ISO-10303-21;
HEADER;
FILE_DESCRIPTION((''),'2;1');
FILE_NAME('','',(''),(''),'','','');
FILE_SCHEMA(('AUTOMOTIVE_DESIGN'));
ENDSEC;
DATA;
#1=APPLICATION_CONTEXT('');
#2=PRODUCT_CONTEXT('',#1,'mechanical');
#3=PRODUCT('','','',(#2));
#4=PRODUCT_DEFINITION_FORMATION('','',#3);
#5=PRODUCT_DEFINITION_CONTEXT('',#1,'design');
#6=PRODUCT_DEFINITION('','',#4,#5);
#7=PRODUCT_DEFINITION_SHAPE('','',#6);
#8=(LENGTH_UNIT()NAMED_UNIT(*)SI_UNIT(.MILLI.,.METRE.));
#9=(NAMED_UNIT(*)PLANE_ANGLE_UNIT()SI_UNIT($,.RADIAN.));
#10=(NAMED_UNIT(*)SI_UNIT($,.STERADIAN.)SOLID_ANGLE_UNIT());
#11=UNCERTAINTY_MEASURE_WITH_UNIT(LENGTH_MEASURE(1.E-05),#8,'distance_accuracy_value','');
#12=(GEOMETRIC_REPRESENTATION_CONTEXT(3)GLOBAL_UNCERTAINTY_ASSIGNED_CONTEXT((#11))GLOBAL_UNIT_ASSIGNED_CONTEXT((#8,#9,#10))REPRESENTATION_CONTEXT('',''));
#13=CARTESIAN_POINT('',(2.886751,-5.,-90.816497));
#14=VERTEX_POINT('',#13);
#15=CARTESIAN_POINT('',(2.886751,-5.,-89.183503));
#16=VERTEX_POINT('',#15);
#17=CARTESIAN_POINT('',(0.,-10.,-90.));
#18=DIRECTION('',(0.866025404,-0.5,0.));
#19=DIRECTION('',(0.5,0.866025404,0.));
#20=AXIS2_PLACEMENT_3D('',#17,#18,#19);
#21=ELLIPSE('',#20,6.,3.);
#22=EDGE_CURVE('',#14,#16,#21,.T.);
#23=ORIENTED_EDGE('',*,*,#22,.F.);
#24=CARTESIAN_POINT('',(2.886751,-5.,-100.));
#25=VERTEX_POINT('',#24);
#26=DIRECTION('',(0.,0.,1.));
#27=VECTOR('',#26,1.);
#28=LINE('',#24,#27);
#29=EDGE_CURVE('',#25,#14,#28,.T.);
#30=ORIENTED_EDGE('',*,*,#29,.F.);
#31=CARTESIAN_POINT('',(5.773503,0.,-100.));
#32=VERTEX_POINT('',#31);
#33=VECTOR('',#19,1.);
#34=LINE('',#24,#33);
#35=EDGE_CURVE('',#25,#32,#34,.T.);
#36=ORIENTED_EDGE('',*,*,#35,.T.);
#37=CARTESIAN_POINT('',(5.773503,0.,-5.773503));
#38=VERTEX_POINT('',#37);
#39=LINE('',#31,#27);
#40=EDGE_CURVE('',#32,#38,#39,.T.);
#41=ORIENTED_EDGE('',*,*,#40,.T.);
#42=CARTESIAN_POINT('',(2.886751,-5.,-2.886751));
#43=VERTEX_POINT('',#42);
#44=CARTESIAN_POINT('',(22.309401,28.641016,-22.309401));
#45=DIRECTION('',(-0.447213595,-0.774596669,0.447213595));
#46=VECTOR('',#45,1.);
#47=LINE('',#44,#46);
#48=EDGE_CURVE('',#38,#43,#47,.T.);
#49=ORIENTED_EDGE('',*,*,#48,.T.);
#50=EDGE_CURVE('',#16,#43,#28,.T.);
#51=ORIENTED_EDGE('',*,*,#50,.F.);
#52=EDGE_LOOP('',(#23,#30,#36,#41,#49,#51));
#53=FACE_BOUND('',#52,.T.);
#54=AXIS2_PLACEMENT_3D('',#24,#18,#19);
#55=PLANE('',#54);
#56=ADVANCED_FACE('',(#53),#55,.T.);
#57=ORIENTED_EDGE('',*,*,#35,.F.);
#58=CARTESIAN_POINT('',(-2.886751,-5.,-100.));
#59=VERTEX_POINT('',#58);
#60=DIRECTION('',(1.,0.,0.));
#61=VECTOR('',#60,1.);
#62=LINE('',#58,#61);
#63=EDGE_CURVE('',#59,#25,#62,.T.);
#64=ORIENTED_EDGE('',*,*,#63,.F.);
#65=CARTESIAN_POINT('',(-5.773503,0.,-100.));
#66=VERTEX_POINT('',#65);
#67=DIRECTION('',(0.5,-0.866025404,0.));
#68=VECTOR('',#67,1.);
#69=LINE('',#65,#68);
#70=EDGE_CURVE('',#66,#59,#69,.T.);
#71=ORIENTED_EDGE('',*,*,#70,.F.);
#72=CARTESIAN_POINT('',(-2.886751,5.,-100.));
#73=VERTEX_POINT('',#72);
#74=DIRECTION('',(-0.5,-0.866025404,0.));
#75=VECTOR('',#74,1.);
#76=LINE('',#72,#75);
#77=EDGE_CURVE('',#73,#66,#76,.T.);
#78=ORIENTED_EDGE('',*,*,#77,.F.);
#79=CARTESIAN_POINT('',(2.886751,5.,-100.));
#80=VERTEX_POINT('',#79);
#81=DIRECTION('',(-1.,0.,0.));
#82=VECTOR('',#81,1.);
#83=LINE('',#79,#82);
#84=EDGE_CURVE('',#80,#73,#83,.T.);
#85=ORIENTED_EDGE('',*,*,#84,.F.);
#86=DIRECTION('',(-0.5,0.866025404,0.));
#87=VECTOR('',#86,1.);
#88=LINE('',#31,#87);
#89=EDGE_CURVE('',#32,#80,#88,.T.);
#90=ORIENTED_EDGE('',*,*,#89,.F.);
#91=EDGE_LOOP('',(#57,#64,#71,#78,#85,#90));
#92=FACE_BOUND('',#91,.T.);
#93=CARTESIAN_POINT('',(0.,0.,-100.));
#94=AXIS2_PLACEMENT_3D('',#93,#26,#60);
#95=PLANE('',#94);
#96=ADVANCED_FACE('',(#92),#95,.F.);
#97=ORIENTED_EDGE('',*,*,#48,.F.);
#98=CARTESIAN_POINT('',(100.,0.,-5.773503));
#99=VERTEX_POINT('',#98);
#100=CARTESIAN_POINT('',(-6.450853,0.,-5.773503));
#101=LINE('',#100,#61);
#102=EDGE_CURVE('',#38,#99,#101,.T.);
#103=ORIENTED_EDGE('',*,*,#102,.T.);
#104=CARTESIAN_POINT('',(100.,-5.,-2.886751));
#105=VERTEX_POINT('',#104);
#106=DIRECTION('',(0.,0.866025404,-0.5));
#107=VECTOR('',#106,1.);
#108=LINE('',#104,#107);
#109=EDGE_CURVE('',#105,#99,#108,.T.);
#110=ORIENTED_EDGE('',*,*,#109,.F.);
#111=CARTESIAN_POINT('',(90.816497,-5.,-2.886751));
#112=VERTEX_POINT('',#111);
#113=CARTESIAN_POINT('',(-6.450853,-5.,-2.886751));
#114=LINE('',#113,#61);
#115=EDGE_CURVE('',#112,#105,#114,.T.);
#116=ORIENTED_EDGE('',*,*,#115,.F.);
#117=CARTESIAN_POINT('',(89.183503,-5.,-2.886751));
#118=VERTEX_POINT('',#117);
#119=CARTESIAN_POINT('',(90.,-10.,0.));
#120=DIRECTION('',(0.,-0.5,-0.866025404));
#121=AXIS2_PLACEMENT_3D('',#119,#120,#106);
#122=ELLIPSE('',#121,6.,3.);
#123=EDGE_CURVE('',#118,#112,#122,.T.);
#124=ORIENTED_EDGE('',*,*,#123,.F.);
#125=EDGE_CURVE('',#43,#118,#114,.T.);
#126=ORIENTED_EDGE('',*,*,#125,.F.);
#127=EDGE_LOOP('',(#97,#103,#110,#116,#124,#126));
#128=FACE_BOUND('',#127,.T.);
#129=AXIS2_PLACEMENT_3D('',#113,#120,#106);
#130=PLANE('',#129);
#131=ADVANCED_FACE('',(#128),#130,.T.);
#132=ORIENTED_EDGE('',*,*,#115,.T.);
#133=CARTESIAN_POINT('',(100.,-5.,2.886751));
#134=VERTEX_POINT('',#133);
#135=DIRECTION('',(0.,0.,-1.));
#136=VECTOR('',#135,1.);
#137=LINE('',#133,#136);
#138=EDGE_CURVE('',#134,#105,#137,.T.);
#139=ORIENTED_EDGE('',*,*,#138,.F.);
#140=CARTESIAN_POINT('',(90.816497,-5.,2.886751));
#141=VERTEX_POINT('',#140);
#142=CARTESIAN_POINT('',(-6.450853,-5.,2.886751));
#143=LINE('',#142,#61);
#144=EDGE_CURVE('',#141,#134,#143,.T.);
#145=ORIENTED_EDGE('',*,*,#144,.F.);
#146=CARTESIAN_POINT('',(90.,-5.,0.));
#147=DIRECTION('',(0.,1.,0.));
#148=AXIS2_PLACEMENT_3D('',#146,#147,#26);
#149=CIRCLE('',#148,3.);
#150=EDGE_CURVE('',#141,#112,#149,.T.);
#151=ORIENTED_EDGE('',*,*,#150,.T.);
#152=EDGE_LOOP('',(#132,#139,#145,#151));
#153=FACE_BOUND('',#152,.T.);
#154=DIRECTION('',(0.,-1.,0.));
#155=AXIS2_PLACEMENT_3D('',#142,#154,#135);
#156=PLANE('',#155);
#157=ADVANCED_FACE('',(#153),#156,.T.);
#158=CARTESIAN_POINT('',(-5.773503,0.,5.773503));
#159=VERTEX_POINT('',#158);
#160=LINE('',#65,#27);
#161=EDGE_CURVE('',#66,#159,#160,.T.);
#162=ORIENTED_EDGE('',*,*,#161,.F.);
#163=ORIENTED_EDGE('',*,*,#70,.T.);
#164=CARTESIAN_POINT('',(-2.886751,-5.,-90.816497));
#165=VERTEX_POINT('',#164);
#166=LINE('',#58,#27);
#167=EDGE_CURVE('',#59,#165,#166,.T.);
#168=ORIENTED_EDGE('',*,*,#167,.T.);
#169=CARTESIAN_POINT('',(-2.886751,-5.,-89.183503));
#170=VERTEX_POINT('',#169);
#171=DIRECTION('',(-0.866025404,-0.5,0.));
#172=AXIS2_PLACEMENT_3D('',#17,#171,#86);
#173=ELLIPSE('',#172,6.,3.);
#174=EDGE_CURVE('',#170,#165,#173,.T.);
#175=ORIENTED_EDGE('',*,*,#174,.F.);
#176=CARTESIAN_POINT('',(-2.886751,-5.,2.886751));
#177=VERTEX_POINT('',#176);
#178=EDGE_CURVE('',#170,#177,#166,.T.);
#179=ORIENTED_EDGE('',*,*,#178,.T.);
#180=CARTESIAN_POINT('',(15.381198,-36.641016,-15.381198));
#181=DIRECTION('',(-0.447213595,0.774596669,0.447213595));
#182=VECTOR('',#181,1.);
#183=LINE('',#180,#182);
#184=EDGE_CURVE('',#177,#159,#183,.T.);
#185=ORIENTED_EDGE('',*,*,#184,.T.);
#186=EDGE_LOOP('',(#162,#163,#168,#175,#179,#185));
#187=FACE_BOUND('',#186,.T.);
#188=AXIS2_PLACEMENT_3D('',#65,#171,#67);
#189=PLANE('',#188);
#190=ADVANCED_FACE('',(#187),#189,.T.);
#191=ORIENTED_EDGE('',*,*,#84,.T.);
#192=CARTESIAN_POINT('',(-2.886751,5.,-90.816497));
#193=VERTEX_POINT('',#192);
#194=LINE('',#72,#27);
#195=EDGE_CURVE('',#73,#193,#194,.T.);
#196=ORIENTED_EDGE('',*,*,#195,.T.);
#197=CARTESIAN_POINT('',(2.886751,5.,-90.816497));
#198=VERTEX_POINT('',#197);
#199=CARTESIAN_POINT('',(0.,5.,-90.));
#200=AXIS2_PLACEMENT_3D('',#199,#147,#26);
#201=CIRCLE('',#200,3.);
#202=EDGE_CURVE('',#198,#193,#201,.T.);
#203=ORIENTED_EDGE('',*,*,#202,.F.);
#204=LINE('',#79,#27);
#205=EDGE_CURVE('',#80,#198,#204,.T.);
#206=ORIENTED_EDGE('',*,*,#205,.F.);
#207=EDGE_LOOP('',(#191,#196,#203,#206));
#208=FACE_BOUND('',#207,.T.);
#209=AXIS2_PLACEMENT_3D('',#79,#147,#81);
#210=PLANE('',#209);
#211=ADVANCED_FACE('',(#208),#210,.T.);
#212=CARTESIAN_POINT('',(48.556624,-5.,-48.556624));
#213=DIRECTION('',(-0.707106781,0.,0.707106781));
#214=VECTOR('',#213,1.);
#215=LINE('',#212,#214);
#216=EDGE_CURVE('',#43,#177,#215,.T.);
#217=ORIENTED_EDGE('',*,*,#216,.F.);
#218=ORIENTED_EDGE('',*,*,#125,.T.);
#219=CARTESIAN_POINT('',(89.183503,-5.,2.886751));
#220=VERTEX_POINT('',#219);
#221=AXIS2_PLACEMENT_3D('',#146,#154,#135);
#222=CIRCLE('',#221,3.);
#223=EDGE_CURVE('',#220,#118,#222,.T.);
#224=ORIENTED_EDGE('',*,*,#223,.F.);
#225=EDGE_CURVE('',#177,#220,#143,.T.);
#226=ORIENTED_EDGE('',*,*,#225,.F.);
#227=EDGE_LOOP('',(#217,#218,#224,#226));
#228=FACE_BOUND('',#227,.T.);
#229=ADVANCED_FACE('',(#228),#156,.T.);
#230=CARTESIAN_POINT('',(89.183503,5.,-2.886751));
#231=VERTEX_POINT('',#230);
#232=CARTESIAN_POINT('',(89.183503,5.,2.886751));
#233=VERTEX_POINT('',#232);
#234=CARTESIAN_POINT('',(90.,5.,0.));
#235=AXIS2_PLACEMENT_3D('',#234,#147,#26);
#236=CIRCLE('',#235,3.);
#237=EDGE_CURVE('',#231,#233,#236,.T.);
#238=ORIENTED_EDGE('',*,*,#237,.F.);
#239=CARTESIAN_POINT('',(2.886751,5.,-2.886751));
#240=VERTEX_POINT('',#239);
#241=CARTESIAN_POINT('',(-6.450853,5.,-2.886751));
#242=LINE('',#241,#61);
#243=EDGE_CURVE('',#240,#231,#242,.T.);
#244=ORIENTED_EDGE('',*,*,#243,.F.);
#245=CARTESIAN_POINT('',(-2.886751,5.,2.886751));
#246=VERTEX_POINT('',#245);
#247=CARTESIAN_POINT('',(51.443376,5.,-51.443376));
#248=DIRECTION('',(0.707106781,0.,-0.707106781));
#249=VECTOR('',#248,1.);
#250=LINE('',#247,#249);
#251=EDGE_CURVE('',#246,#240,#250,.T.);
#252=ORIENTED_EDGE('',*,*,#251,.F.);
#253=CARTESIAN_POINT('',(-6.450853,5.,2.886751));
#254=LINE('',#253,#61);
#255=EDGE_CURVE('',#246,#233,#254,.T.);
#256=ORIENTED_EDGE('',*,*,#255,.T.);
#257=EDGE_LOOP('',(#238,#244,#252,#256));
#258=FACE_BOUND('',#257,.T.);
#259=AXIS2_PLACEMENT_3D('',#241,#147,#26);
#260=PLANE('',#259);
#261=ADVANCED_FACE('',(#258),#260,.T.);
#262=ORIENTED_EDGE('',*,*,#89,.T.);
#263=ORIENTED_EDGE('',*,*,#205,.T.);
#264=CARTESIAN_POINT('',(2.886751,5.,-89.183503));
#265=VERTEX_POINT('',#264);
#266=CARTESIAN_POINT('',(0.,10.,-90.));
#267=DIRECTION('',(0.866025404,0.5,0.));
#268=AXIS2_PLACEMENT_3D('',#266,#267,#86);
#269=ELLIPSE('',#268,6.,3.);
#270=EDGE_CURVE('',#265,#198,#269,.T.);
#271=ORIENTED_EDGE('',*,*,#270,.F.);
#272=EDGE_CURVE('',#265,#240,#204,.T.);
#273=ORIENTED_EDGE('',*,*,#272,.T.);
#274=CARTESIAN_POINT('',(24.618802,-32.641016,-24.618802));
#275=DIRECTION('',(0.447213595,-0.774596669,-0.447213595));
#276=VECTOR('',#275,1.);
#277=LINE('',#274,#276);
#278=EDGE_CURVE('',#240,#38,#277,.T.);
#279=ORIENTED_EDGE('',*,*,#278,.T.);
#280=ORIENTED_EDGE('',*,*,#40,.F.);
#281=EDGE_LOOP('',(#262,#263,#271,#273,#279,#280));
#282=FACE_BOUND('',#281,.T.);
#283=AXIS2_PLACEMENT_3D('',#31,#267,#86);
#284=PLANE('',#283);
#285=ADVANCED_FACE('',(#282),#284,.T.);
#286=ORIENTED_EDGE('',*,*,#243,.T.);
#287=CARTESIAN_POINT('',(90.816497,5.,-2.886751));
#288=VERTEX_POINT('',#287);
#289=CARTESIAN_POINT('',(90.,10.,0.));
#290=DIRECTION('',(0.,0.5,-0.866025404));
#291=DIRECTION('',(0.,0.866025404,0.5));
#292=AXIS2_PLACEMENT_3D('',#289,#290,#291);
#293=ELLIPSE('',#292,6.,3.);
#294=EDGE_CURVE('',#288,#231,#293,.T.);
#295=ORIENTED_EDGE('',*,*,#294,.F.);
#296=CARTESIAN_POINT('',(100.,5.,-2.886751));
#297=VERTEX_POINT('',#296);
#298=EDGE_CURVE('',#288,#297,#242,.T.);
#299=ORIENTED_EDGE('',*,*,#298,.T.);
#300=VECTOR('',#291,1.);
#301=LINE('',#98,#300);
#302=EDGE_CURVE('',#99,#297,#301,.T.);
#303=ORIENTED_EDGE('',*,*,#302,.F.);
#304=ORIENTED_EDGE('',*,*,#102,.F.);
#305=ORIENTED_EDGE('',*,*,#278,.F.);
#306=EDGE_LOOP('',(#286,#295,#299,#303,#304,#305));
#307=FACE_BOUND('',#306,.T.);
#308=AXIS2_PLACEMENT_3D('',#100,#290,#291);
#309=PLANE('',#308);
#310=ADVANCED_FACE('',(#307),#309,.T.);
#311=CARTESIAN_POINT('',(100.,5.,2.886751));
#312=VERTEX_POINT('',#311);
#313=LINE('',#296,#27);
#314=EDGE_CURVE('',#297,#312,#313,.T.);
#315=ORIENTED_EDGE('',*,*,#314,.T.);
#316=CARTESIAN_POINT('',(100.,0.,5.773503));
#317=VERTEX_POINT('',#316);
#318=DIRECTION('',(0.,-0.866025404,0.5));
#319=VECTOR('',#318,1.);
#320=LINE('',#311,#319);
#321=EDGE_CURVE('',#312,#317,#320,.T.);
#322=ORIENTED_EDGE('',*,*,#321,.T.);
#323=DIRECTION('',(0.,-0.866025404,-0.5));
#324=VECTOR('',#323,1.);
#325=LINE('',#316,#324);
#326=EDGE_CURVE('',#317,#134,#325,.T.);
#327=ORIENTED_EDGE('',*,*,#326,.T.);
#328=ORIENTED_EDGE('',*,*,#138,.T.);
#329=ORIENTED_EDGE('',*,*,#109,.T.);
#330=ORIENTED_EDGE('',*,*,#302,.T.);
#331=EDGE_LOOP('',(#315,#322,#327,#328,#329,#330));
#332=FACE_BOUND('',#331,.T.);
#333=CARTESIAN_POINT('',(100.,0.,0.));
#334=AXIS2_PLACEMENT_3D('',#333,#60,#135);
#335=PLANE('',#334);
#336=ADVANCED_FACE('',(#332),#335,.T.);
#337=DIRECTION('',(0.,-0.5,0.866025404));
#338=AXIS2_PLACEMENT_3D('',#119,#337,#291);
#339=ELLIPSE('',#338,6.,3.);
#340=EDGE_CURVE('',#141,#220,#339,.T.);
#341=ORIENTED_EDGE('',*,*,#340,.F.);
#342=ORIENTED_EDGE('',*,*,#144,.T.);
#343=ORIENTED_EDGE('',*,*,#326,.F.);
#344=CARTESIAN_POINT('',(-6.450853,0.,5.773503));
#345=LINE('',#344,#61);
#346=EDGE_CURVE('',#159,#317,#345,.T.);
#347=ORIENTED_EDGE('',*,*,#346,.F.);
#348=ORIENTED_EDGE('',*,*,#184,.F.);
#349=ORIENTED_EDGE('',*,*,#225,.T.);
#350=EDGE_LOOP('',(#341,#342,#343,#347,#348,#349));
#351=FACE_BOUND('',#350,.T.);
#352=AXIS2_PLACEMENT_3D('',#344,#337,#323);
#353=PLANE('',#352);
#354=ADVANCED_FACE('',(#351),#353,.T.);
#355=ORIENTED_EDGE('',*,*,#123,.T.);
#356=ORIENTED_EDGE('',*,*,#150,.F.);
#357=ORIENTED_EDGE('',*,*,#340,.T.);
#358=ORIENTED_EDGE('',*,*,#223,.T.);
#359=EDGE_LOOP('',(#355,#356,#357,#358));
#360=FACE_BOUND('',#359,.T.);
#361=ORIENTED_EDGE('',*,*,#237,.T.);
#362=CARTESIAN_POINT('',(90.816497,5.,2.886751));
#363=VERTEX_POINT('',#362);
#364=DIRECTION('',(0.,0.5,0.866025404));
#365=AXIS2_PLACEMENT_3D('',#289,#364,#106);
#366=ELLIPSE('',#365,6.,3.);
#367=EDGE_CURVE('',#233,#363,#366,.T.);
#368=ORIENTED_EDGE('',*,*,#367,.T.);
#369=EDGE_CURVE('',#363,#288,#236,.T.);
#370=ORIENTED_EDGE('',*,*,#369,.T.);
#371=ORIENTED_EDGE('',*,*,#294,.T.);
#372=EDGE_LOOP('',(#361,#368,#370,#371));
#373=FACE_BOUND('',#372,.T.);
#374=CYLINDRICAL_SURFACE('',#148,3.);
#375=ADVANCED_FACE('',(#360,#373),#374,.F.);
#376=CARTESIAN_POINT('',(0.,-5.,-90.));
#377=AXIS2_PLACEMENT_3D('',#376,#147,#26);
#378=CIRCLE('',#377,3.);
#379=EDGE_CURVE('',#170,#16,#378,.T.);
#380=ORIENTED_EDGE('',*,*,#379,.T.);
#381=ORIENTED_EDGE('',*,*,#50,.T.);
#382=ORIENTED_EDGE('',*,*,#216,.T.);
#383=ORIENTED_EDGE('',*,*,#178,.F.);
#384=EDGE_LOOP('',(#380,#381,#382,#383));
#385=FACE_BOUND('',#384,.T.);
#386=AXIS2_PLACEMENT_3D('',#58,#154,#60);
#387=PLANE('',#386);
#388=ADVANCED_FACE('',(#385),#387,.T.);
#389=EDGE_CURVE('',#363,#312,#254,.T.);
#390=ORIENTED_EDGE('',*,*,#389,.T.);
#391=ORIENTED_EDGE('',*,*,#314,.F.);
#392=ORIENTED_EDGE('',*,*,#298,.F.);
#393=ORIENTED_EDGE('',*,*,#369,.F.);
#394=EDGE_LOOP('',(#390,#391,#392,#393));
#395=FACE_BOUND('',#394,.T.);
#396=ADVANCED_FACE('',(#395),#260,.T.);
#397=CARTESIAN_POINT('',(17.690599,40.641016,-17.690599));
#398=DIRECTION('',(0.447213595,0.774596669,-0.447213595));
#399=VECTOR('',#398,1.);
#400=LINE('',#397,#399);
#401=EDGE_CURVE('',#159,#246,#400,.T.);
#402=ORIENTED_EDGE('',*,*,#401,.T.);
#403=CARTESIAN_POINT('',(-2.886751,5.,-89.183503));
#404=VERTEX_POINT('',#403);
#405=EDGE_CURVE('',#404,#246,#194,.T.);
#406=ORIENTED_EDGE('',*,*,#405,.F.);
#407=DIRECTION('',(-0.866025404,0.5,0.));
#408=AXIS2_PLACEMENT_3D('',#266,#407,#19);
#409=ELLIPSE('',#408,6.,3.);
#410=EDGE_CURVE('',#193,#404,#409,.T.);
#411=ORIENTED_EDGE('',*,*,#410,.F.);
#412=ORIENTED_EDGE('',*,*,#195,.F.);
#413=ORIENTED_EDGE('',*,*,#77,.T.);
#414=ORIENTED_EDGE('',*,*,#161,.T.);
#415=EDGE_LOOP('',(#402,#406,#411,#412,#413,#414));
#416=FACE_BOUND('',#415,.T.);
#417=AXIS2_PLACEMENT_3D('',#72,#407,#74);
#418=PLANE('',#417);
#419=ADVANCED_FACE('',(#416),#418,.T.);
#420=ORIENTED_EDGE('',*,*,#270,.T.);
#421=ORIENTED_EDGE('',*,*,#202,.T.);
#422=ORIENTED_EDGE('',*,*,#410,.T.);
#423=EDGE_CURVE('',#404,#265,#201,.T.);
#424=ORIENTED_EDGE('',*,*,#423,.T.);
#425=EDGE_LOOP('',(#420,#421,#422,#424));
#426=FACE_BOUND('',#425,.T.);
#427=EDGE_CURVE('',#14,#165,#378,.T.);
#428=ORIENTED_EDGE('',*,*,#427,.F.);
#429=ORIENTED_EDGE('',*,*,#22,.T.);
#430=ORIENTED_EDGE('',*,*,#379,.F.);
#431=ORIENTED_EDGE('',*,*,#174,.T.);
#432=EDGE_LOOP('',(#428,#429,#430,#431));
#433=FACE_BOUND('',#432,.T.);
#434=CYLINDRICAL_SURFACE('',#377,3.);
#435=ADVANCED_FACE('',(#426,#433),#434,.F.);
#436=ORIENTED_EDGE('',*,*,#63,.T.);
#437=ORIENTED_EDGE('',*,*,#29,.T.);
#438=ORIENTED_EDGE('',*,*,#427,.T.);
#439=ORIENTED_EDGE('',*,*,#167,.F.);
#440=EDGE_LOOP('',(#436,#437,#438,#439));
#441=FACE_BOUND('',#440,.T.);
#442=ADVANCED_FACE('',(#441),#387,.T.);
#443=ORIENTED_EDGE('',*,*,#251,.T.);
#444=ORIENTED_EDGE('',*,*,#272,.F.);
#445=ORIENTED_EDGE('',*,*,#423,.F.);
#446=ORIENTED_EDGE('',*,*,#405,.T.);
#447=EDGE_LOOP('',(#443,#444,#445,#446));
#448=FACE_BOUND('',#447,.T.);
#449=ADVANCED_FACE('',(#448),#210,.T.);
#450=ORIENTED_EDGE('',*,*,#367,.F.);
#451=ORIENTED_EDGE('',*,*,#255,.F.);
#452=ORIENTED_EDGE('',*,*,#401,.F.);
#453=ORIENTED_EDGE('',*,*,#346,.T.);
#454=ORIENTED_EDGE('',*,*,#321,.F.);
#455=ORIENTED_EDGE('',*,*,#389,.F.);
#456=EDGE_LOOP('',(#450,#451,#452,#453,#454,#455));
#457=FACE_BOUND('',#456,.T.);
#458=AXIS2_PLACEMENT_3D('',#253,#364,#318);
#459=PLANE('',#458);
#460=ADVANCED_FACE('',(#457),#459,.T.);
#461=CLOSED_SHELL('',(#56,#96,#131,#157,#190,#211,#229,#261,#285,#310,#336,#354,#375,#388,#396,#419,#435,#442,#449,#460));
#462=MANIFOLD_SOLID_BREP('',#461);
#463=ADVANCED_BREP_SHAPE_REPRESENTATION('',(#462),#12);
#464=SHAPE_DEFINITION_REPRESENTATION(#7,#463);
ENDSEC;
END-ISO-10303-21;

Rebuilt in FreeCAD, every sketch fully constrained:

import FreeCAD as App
import Part
import Sketcher
from FreeCAD import Vector
Q = App.Units.Quantity

doc = App.newDocument("Part")
body = doc.addObject("PartDesign::Body", "Body")

sketch1 = body.newObject("Sketcher::SketchObject", "Sketch")
sketch1.AttachmentSupport = (doc.getObject("XY_Plane"), [""])
sketch1.MapMode = "FlatFace"
sketch1.AttachmentOffset = App.Placement(Vector(0, 0, -100), App.Rotation())
sketch1.addGeometry([
    Part.LineSegment(Vector(6, 0, 0), Vector(3, 5, 0)),
    Part.LineSegment(Vector(3, 5, 0), Vector(-3, 5, 0)),
    Part.LineSegment(Vector(-3, 5, 0), Vector(-6, 0, 0)),
    Part.LineSegment(Vector(-6, 0, 0), Vector(-3, -5, 0)),
    Part.LineSegment(Vector(-3, -5, 0), Vector(3, -5, 0)),
    Part.LineSegment(Vector(3, -5, 0), Vector(6, 0, 0)),
], False)
sketch1.addConstraint([
    Sketcher.Constraint("Coincident", 0, 2, 1, 1),
    Sketcher.Constraint("Coincident", 1, 2, 2, 1),
    Sketcher.Constraint("Coincident", 2, 2, 3, 1),
    Sketcher.Constraint("Coincident", 3, 2, 4, 1),
    Sketcher.Constraint("Coincident", 4, 2, 5, 1),
    Sketcher.Constraint("Coincident", 5, 2, 0, 1),
    Sketcher.Constraint("Horizontal", 1),
    Sketcher.Constraint("Horizontal", 4),
    Sketcher.Constraint("Symmetric", 0, 2, 3, 2, -1, 1),
    Sketcher.Constraint("Symmetric", 2, 2, 5, 2, -1, 1),
    Sketcher.Constraint("PointOnObject", 2, 2, -1),
    Sketcher.Constraint("Parallel", 2, 5),
    Sketcher.Constraint("Vertical", 1, 2, 3, 2),
    Sketcher.Constraint("Angle", 0, Q("120 deg")),
    Sketcher.Constraint("DistanceY", -1, 1, 0, 2, 5.0),
    Sketcher.Constraint("DistanceX", 1, 2, 1, 1, 5.773503),
])

sketch2 = body.newObject("Sketcher::SketchObject", "Sketch001")
sketch2.AttachmentSupport = (doc.getObject("XZ_Plane"), [""])
sketch2.MapMode = "FlatFace"
sketch2.addGeometry([
    Part.LineSegment(Vector(0, -100, 0), Vector(0, 0, 0)),
    Part.LineSegment(Vector(0, 0, 0), Vector(100, 0, 0)),
], False)
sketch2.addConstraint([
    Sketcher.Constraint("Coincident", 0, 2, 1, 1),
    Sketcher.Constraint("Vertical", 0),
    Sketcher.Constraint("Horizontal", 1),
    Sketcher.Constraint("Coincident", 0, 2, -1, 1),
    Sketcher.Constraint("Equal", 1, 0),
    Sketcher.Constraint("DistanceX", 1, 1, 1, 2, 100.0),
])
doc.recompute()

additivepipe = body.newObject("PartDesign::AdditivePipe", "AdditivePipe")
additivepipe.Profile = sketch1
additivepipe.Spine = (sketch2, ["Edge1", "Edge2"])
additivepipe.Transition = "Right corner"

sketch3 = body.newObject("Sketcher::SketchObject", "Sketch002")
sketch3.AttachmentSupport = (doc.getObject("XZ_Plane"), [""])
sketch3.MapMode = "FlatFace"
sketch3.addGeometry([
    Part.Circle(Vector(0, -90, 0), Vector(0, 0, 1), 3),
    Part.Circle(Vector(90, 0, 0), Vector(0, 0, 1), 3),
], False)
sketch3.addConstraint([
    Sketcher.Constraint("Equal", 0, 1),
    Sketcher.Constraint("PointOnObject", 0, 3, -2),
    Sketcher.Constraint("PointOnObject", 1, 3, -1),
    Sketcher.Constraint("Diameter", 0, 6.0),
    Sketcher.Constraint("DistanceY", 0, 3, -1, 1, 90.0),
    Sketcher.Constraint("DistanceX", -1, 1, 1, 3, 90.0),
])
pocket1 = body.newObject("PartDesign::Pocket", "Pocket")
pocket1.Profile = sketch3
pocket1.Type = "ThroughAll"
pocket1.Midplane = True

doc.recompute()
